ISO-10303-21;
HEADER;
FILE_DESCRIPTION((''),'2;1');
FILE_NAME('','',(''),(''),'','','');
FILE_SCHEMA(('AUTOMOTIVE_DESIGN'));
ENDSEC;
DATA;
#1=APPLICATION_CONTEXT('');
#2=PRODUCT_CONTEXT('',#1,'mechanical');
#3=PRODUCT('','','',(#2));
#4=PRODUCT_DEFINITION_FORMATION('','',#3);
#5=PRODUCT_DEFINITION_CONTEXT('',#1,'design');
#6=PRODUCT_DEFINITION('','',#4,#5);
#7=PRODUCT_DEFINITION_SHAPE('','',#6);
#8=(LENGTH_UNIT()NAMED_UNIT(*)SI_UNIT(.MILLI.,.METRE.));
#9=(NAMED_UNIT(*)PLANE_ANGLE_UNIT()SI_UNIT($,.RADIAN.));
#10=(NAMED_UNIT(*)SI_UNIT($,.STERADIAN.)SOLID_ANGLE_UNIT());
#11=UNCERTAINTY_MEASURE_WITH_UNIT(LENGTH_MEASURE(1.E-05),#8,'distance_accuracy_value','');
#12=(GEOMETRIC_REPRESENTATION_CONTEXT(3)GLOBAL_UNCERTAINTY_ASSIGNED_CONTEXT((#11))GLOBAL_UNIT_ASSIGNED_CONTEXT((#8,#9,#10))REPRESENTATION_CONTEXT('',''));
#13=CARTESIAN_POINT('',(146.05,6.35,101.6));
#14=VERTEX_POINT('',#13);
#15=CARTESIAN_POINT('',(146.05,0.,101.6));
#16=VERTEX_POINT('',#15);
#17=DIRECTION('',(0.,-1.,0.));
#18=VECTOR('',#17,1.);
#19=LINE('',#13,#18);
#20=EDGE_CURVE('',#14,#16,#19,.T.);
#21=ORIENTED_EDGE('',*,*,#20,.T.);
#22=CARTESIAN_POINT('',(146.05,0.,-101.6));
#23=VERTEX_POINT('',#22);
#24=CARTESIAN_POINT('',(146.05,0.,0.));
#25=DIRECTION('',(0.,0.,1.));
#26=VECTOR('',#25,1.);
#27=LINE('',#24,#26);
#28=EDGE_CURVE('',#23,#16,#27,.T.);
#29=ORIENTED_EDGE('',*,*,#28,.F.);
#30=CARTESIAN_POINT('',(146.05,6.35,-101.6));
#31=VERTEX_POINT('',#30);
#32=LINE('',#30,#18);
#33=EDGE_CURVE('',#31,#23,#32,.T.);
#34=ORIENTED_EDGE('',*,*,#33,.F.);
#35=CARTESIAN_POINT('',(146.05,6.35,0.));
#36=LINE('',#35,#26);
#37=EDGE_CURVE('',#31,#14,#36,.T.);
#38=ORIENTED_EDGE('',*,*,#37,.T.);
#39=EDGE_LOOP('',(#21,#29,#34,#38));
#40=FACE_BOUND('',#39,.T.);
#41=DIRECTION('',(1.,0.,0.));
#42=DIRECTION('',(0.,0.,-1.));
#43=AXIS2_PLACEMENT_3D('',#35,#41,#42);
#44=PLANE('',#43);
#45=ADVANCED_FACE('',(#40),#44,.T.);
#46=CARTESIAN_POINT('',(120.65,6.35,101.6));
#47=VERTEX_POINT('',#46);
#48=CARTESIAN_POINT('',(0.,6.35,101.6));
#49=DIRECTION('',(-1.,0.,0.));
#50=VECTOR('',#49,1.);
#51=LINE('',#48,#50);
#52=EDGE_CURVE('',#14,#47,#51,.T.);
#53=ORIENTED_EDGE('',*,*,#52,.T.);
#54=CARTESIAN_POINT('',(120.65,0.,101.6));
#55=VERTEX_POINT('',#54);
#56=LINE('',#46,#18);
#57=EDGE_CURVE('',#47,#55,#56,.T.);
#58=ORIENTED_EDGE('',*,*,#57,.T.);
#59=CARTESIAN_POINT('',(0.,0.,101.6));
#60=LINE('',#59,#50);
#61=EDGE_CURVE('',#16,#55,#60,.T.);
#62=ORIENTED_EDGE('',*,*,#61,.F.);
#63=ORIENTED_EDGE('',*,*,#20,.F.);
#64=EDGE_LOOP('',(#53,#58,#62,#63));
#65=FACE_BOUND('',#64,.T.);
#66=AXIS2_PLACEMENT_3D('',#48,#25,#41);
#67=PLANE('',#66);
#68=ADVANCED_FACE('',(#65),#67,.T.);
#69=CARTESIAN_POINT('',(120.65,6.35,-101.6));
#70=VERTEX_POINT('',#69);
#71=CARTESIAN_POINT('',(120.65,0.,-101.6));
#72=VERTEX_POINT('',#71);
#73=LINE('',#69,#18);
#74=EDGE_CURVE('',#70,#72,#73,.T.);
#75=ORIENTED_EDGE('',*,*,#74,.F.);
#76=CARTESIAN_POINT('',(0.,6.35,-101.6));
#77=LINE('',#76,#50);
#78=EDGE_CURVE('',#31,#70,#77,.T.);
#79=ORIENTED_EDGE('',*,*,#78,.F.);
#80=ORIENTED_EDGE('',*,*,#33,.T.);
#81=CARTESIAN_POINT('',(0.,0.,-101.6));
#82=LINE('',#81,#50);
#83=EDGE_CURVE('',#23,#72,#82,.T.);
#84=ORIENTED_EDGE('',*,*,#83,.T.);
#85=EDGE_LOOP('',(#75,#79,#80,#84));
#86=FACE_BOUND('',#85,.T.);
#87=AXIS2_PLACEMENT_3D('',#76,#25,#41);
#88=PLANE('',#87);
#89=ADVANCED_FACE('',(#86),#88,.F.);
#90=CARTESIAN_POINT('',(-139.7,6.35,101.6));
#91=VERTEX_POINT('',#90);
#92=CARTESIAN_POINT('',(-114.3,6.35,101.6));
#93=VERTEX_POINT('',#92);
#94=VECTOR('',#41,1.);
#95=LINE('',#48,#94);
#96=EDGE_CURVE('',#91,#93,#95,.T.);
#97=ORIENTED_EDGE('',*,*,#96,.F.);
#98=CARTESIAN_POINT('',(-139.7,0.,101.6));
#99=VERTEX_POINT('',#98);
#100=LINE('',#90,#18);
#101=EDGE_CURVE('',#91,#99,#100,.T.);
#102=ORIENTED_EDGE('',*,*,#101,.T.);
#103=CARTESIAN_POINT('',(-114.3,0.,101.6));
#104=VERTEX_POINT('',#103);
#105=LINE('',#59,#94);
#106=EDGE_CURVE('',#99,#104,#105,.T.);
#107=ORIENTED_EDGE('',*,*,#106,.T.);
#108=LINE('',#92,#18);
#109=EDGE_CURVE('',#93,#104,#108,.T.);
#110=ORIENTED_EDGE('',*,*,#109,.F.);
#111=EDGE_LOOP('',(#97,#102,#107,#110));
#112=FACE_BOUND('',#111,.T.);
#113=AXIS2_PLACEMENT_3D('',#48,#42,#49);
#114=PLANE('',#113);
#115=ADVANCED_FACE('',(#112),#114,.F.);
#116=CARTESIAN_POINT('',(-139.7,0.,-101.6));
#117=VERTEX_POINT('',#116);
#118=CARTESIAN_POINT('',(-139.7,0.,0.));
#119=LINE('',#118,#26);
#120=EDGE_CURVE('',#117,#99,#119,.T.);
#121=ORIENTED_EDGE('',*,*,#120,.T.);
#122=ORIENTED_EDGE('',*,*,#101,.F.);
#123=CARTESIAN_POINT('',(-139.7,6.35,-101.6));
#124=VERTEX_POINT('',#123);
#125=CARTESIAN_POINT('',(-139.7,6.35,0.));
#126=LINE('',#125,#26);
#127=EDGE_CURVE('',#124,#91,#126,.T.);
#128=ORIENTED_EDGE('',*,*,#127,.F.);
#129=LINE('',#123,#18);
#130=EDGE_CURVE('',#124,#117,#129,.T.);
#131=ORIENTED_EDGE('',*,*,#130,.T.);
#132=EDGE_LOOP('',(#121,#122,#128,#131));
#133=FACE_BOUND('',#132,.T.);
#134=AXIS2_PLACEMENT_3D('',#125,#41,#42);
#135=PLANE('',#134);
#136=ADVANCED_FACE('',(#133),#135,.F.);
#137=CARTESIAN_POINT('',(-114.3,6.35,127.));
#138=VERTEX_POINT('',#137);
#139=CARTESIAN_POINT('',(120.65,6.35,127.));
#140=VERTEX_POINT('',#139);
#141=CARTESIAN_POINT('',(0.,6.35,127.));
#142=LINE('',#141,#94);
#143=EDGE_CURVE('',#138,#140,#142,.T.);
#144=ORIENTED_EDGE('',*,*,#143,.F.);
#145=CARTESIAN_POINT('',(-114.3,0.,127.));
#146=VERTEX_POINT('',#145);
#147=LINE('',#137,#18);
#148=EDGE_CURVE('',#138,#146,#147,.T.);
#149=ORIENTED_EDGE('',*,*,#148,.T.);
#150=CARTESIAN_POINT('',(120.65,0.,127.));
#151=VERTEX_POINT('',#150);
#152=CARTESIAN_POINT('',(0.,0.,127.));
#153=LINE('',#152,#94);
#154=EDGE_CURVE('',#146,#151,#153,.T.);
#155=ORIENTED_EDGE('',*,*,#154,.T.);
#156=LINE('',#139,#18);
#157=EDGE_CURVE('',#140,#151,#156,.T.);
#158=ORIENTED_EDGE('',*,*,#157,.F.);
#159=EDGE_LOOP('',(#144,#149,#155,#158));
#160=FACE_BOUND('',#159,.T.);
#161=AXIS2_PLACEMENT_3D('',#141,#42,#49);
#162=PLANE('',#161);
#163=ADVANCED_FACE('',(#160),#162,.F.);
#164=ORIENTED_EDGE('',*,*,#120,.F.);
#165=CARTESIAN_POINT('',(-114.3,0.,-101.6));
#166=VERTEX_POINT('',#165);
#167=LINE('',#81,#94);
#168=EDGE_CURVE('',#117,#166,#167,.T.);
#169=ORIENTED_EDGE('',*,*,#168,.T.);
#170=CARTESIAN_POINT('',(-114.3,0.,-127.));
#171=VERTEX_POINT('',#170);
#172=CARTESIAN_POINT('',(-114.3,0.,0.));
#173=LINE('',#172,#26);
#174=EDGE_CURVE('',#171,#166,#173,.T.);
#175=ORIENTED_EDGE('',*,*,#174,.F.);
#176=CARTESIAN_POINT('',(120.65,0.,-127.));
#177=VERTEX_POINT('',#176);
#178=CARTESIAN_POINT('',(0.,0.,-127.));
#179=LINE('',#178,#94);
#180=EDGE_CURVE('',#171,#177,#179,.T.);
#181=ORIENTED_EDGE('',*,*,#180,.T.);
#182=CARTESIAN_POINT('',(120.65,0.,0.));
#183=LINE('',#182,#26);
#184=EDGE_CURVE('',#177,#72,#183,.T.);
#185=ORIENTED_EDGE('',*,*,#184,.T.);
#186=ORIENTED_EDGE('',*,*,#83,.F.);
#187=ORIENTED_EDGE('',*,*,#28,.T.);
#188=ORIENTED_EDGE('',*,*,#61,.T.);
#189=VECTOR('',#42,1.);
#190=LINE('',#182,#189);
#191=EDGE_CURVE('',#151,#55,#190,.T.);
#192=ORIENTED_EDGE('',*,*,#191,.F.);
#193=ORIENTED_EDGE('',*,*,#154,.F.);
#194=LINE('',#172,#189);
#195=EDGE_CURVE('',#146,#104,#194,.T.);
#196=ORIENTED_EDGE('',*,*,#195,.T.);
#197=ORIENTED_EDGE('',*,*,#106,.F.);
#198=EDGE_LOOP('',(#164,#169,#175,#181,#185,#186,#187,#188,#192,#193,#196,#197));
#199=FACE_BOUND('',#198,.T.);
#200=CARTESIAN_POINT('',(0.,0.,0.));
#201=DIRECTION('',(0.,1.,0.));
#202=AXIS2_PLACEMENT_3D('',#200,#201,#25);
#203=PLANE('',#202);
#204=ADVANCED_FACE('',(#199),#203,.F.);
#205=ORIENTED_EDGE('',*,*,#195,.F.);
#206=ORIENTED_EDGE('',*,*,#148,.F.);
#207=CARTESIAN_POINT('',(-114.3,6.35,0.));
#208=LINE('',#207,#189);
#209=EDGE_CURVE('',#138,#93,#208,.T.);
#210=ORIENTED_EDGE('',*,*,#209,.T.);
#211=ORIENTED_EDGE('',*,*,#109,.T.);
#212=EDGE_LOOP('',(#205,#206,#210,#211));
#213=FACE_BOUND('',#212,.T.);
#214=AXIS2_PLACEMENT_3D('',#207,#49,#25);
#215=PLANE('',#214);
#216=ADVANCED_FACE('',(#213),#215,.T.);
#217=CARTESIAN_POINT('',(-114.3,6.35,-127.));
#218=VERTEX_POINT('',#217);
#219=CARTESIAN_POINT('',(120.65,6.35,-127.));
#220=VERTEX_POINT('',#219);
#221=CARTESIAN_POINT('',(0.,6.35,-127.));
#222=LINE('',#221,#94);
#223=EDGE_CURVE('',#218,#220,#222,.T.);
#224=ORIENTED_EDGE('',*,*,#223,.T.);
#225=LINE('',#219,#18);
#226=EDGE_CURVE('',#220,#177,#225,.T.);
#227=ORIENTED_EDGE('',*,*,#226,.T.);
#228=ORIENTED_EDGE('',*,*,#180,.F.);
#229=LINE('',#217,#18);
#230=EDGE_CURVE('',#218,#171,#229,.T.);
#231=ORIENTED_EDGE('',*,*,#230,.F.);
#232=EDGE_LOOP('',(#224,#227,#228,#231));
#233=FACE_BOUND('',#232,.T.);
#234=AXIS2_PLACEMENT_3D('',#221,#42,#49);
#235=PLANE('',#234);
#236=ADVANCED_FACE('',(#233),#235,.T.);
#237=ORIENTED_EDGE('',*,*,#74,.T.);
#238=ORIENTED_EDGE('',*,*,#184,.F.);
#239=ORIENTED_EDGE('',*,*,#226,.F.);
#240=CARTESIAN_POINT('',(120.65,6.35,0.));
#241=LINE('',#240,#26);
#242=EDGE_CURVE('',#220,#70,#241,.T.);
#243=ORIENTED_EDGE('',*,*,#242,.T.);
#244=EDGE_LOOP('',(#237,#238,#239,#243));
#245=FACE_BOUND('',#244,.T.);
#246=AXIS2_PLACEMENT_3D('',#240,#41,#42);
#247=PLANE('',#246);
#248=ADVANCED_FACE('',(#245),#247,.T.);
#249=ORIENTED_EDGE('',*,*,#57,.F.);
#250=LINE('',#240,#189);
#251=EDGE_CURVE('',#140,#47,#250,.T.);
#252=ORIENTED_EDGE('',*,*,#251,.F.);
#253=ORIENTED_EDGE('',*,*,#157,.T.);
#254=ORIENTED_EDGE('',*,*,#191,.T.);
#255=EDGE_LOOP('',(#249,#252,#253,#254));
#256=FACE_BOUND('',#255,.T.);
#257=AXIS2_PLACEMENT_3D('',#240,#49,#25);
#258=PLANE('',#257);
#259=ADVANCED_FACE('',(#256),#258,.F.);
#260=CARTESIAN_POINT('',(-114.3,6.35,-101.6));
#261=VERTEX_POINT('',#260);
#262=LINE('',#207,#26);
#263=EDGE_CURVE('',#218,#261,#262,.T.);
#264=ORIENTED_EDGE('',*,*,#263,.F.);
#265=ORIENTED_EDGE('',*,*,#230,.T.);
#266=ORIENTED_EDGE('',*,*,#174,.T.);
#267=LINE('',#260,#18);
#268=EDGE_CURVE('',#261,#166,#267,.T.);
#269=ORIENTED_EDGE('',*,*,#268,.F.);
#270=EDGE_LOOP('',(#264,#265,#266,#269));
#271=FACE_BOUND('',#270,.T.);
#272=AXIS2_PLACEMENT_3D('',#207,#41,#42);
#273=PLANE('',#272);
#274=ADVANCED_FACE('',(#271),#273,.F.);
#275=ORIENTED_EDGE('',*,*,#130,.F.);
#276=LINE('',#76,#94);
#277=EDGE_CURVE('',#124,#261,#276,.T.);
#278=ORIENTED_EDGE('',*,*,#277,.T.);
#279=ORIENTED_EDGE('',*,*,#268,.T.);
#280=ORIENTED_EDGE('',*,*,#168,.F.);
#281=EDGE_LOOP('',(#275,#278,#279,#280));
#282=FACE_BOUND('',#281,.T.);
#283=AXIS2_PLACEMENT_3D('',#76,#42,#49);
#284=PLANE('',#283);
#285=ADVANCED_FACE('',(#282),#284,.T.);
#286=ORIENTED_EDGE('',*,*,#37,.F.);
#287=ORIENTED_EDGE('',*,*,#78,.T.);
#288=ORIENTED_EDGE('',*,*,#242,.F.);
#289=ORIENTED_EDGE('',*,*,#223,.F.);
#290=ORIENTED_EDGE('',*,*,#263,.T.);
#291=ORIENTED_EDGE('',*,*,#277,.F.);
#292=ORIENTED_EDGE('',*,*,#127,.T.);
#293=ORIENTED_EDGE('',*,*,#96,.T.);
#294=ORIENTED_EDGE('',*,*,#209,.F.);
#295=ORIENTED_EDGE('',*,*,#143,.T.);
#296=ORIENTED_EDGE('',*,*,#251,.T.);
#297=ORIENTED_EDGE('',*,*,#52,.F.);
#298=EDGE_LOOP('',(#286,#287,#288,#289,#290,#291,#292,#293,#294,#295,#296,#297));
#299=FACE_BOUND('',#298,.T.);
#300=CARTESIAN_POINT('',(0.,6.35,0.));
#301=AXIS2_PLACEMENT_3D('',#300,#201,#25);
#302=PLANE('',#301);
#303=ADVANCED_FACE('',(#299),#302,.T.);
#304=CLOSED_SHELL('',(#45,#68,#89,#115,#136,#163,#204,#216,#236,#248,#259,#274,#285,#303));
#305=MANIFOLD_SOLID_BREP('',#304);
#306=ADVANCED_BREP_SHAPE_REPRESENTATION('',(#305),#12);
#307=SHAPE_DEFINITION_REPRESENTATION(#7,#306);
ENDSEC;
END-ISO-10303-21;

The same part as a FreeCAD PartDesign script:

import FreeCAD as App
import Part
import Sketcher
Q = App.Units.Quantity


def add_polygon(sketch, points):
    """Adds a closed chain of lines whose ends are joined by coincident constraints."""
    first, n = sketch.GeometryCount, len(points)
    for a, b in zip(points, points[1:] + points[:1]):
        sketch.addGeometry(Part.LineSegment(App.Vector(*a, 0), App.Vector(*b, 0)), False)
    for i in range(n):
        sketch.addConstraint(Sketcher.Constraint("Coincident", first + i, 2, first + (i + 1) % n, 1))

doc = App.newDocument("Part")
body = doc.addObject("PartDesign::Body", "Body")

sketch1 = doc.addObject("Sketcher::SketchObject", "Sketch")
body.addObject(sketch1)
sketch1.AttachmentSupport = (doc.XZ_Plane, [""])
sketch1.MapMode = "FlatFace"
add_polygon(sketch1, [(121, -127), (-114, -127), (-114, -102), (-140, -102), (-140, 102), (-114, 102), (-114, 127), (121, 127), (121, 102), (146, 102), (146, -102), (121, -102)])
sketch1.addConstraint(Sketcher.Constraint("Horizontal", 0))
sketch1.addConstraint(Sketcher.Constraint("Vertical", 1))
sketch1.addConstraint(Sketcher.Constraint("Horizontal", 2))
sketch1.addConstraint(Sketcher.Constraint("Vertical", 3))
sketch1.addConstraint(Sketcher.Constraint("Horizontal", 4))
sketch1.addConstraint(Sketcher.Constraint("Vertical", 5))
sketch1.addConstraint(Sketcher.Constraint("Horizontal", 6))
sketch1.addConstraint(Sketcher.Constraint("Vertical", 7))
sketch1.addConstraint(Sketcher.Constraint("Horizontal", 8))
sketch1.addConstraint(Sketcher.Constraint("Vertical", 9))
sketch1.addConstraint(Sketcher.Constraint("Horizontal", 10))
sketch1.addConstraint(Sketcher.Constraint("Vertical", 11))
sketch1.addConstraint(Sketcher.Constraint("Symmetric", 1, 2, 4, 2, -1))
sketch1.addConstraint(Sketcher.Constraint("Symmetric", 7, 2, 10, 2, -1))
sketch1.addConstraint(Sketcher.Constraint("Horizontal", 4, 2, 7, 2))
sketch1.addConstraint(Sketcher.Constraint("Equal", 4, 8))
sketch1.addConstraint(Sketcher.Constraint("Equal", 10, 1))
sketch1.addConstraint(Sketcher.Constraint("Equal", 1, 5))
sketch1.addConstraint(Sketcher.Constraint("DistanceX", 2, 2, 2, 1, Q("1 in")))
sketch1.addConstraint(Sketcher.Constraint("DistanceY", 3, 1, 3, 2, Q("8 in")))
sketch1.addConstraint(Sketcher.Constraint("DistanceX", 0, 2, 0, 1, Q("9.25 in")))
sketch1.addConstraint(Sketcher.Constraint("DistanceX", 0, 2, -1, 1, Q("4.5 in")))
pad1 = doc.addObject("PartDesign::Pad", "Pad")
body.addObject(pad1)
pad1.Profile = sketch1
pad1.Length = Q("0.25 in")
pad1.Reversed = True

doc.recompute()
